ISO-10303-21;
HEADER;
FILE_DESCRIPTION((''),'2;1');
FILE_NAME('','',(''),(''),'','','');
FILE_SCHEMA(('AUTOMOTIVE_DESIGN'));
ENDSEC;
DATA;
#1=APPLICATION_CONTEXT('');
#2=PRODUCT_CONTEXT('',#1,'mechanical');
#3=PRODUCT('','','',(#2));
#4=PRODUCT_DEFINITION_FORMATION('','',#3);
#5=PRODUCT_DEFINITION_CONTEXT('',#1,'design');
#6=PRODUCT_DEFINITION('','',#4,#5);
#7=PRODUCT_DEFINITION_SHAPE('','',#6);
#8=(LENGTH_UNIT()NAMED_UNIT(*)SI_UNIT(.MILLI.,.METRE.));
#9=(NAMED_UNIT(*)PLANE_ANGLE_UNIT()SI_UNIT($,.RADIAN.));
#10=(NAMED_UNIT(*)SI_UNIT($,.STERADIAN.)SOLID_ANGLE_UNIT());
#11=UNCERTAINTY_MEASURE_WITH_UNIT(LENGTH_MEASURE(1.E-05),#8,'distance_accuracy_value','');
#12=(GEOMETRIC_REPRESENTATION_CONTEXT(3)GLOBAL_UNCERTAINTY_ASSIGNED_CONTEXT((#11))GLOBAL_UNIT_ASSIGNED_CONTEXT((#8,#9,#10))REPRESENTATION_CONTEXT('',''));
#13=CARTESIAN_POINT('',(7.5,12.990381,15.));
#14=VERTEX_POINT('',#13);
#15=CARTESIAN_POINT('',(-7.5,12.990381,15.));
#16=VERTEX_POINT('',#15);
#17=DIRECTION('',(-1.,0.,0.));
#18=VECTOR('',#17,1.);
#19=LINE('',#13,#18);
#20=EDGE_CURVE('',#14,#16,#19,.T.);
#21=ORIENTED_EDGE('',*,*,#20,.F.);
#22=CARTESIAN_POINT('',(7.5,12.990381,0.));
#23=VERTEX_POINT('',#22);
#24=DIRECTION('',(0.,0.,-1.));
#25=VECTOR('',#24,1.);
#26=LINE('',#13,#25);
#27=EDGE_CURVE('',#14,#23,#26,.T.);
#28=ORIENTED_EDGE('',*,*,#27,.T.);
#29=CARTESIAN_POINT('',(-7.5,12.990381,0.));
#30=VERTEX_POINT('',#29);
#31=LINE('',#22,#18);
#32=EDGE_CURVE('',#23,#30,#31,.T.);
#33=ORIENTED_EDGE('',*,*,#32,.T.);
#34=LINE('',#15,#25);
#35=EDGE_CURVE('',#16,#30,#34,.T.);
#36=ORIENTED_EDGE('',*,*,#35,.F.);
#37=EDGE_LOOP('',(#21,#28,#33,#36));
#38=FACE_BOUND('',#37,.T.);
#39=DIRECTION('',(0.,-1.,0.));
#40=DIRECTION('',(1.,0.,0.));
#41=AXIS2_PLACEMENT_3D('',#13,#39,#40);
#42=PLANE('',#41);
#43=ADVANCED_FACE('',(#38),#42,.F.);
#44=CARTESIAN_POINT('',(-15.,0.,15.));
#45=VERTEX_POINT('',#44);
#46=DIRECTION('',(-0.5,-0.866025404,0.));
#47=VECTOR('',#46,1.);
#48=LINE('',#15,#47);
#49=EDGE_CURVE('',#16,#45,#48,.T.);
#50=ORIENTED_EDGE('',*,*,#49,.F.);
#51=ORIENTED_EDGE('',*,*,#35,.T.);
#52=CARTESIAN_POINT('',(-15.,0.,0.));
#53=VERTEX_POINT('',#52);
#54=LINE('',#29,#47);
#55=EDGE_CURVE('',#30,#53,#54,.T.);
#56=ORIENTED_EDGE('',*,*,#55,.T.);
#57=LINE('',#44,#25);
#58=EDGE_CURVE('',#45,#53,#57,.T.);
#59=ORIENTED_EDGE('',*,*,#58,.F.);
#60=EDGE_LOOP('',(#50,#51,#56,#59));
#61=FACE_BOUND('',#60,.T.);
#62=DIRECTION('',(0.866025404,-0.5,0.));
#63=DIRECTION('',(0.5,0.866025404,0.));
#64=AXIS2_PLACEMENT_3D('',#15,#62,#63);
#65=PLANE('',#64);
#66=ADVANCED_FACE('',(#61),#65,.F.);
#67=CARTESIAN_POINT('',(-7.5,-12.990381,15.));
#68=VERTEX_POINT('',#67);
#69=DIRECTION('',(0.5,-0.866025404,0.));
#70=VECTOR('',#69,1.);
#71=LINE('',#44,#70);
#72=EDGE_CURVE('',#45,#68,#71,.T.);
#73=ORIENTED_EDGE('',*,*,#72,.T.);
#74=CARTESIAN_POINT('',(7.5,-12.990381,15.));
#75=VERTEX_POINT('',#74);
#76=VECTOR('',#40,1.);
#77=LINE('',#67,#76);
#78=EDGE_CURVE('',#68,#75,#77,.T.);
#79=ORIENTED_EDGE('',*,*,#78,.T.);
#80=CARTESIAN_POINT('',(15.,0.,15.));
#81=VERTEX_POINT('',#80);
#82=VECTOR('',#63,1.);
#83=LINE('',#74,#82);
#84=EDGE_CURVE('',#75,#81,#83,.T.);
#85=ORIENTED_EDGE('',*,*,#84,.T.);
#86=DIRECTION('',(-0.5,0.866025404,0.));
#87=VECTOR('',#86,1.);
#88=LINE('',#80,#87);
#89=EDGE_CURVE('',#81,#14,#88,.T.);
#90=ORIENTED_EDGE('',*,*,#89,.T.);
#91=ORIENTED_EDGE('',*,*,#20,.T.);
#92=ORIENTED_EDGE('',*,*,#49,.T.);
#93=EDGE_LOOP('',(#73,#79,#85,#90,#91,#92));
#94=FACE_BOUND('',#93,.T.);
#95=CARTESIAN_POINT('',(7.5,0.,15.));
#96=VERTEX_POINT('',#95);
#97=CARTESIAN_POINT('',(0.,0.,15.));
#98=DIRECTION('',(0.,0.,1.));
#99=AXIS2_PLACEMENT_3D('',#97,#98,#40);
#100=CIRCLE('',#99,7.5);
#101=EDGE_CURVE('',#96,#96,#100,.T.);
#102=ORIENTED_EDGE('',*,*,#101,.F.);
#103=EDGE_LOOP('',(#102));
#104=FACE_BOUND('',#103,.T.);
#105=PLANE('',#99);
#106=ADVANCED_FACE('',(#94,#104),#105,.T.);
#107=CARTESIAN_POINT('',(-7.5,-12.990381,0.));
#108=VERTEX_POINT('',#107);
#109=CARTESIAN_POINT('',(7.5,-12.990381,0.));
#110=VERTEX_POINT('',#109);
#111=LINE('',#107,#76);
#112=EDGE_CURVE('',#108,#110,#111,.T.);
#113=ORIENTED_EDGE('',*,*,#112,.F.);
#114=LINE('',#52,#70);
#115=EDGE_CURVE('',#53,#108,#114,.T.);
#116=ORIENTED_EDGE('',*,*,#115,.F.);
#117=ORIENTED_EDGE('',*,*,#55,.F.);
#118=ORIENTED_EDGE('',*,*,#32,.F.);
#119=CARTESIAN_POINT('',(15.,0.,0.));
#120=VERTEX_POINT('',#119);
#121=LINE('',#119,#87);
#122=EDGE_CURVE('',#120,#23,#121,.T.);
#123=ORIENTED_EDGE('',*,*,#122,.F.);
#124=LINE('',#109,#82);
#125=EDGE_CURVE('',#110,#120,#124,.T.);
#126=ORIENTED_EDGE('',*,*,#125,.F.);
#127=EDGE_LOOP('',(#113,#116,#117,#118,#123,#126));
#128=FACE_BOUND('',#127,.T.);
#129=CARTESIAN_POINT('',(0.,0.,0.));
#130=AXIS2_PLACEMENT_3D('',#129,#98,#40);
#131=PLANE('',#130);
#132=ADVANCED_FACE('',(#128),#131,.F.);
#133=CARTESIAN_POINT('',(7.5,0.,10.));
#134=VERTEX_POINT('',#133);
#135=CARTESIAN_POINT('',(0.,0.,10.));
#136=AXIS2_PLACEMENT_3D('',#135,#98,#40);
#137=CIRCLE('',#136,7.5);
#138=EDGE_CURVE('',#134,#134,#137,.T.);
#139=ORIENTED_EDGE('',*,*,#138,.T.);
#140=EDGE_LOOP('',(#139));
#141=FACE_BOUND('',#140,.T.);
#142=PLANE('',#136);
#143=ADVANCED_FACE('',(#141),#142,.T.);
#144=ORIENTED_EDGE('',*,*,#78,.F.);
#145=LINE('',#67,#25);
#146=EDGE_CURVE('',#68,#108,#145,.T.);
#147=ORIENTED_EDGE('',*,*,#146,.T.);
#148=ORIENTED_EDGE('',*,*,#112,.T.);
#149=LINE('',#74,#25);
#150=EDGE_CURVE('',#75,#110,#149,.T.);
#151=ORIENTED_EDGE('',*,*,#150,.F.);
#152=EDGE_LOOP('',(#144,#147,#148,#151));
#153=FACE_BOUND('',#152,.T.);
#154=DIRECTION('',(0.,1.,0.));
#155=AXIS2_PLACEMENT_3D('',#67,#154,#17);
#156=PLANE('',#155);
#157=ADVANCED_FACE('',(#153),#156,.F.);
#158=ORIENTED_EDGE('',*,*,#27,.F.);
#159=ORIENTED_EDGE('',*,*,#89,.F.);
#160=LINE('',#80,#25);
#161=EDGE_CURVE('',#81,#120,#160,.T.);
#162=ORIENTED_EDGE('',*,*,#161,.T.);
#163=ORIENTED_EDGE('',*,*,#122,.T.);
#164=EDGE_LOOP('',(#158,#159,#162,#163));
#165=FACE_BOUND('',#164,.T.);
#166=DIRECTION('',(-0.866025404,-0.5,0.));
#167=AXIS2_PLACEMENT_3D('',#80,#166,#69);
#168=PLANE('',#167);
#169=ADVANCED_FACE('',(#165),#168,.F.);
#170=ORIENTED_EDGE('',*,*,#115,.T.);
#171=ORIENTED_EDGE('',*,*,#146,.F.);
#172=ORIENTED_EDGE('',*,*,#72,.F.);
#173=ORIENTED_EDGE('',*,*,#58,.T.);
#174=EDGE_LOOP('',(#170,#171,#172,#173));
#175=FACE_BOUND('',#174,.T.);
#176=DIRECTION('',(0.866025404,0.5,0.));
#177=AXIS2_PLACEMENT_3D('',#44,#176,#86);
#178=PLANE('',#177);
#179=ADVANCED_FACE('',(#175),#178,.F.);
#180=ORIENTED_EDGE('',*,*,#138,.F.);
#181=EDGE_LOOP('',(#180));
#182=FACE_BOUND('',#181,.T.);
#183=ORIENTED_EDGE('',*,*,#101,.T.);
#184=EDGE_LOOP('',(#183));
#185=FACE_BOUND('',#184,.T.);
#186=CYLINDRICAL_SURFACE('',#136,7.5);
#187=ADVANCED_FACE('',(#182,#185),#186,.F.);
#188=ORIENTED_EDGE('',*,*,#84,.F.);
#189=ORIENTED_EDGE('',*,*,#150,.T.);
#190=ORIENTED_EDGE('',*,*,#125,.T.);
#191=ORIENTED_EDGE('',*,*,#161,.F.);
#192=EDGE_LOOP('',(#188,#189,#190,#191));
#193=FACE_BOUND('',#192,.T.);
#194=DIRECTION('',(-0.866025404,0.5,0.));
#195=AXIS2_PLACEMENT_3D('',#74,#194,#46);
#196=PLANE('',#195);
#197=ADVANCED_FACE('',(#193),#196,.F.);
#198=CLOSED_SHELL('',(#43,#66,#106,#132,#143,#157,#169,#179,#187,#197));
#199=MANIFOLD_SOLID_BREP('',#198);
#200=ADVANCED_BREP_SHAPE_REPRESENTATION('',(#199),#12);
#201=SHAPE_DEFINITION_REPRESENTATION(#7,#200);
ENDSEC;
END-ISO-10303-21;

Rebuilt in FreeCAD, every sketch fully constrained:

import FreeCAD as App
import Part
import Sketcher
Q = App.Units.Quantity


def add_polygon(sketch, points):
    """Adds a closed chain of lines whose ends are joined by coincident constraints."""
    first, n = sketch.GeometryCount, len(points)
    for a, b in zip(points, points[1:] + points[:1]):
        sketch.addGeometry(Part.LineSegment(App.Vector(*a, 0), App.Vector(*b, 0)), False)
    for i in range(n):
        sketch.addConstraint(Sketcher.Constraint("Coincident", first + i, 2, first + (i + 1) % n, 1))

doc = App.newDocument("Part")
body = doc.addObject("PartDesign::Body", "Body")

sketch1 = body.newObject("Sketcher::SketchObject", "Sketch")
sketch1.AttachmentSupport = (doc.getObject("XY_Plane"), [""])
sketch1.MapMode = "FlatFace"
add_polygon(sketch1, [(8, -13), (15, 0), (8, 13), (-8, 13), (-15, 0), (-8, -13)])
sketch1.addConstraint([
    Sketcher.Constraint("Horizontal", 2),
    Sketcher.Constraint("Horizontal", 5),
    Sketcher.Constraint("Symmetric", 0, 2, 3, 2, -1, 1),
    Sketcher.Constraint("Symmetric", 1, 2, 4, 2, -1, 1),
    Sketcher.Constraint("PointOnObject", 0, 2, -1),
    Sketcher.Constraint("Parallel", 0, 3),
    Sketcher.Constraint("Vertical", 2, 2, 4, 2),
    Sketcher.Constraint("DistanceX", 2, 2, 2, 1, 15.0),
    Sketcher.Constraint("Angle", 0, Q("60 deg")),
    Sketcher.Constraint("Distance", 0, 15.0),
])
pad1 = body.newObject("PartDesign::Pad", "Pad")
pad1.Profile = sketch1
pad1.Length = 15

sketch2 = body.newObject("Sketcher::SketchObject", "Sketch001")
sketch2.AttachmentSupport = (doc.getObject("XY_Plane"), [""])
sketch2.MapMode = "FlatFace"
sketch2.AttachmentOffset = App.Placement(App.Vector(0, 0, 15), App.Rotation())
sketch2.addGeometry(Part.Circle(App.Vector(0, 0, 0), App.Vector(0, 0, 1), 8), False)
sketch2.addConstraint([
    Sketcher.Constraint("Coincident", 0, 3, -1, 1),
    Sketcher.Constraint("Diameter", 0, 15.0),
])
pocket1 = body.newObject("PartDesign::Pocket", "Pocket")
pocket1.Profile = sketch2
pocket1.Length = 5

doc.recompute()
